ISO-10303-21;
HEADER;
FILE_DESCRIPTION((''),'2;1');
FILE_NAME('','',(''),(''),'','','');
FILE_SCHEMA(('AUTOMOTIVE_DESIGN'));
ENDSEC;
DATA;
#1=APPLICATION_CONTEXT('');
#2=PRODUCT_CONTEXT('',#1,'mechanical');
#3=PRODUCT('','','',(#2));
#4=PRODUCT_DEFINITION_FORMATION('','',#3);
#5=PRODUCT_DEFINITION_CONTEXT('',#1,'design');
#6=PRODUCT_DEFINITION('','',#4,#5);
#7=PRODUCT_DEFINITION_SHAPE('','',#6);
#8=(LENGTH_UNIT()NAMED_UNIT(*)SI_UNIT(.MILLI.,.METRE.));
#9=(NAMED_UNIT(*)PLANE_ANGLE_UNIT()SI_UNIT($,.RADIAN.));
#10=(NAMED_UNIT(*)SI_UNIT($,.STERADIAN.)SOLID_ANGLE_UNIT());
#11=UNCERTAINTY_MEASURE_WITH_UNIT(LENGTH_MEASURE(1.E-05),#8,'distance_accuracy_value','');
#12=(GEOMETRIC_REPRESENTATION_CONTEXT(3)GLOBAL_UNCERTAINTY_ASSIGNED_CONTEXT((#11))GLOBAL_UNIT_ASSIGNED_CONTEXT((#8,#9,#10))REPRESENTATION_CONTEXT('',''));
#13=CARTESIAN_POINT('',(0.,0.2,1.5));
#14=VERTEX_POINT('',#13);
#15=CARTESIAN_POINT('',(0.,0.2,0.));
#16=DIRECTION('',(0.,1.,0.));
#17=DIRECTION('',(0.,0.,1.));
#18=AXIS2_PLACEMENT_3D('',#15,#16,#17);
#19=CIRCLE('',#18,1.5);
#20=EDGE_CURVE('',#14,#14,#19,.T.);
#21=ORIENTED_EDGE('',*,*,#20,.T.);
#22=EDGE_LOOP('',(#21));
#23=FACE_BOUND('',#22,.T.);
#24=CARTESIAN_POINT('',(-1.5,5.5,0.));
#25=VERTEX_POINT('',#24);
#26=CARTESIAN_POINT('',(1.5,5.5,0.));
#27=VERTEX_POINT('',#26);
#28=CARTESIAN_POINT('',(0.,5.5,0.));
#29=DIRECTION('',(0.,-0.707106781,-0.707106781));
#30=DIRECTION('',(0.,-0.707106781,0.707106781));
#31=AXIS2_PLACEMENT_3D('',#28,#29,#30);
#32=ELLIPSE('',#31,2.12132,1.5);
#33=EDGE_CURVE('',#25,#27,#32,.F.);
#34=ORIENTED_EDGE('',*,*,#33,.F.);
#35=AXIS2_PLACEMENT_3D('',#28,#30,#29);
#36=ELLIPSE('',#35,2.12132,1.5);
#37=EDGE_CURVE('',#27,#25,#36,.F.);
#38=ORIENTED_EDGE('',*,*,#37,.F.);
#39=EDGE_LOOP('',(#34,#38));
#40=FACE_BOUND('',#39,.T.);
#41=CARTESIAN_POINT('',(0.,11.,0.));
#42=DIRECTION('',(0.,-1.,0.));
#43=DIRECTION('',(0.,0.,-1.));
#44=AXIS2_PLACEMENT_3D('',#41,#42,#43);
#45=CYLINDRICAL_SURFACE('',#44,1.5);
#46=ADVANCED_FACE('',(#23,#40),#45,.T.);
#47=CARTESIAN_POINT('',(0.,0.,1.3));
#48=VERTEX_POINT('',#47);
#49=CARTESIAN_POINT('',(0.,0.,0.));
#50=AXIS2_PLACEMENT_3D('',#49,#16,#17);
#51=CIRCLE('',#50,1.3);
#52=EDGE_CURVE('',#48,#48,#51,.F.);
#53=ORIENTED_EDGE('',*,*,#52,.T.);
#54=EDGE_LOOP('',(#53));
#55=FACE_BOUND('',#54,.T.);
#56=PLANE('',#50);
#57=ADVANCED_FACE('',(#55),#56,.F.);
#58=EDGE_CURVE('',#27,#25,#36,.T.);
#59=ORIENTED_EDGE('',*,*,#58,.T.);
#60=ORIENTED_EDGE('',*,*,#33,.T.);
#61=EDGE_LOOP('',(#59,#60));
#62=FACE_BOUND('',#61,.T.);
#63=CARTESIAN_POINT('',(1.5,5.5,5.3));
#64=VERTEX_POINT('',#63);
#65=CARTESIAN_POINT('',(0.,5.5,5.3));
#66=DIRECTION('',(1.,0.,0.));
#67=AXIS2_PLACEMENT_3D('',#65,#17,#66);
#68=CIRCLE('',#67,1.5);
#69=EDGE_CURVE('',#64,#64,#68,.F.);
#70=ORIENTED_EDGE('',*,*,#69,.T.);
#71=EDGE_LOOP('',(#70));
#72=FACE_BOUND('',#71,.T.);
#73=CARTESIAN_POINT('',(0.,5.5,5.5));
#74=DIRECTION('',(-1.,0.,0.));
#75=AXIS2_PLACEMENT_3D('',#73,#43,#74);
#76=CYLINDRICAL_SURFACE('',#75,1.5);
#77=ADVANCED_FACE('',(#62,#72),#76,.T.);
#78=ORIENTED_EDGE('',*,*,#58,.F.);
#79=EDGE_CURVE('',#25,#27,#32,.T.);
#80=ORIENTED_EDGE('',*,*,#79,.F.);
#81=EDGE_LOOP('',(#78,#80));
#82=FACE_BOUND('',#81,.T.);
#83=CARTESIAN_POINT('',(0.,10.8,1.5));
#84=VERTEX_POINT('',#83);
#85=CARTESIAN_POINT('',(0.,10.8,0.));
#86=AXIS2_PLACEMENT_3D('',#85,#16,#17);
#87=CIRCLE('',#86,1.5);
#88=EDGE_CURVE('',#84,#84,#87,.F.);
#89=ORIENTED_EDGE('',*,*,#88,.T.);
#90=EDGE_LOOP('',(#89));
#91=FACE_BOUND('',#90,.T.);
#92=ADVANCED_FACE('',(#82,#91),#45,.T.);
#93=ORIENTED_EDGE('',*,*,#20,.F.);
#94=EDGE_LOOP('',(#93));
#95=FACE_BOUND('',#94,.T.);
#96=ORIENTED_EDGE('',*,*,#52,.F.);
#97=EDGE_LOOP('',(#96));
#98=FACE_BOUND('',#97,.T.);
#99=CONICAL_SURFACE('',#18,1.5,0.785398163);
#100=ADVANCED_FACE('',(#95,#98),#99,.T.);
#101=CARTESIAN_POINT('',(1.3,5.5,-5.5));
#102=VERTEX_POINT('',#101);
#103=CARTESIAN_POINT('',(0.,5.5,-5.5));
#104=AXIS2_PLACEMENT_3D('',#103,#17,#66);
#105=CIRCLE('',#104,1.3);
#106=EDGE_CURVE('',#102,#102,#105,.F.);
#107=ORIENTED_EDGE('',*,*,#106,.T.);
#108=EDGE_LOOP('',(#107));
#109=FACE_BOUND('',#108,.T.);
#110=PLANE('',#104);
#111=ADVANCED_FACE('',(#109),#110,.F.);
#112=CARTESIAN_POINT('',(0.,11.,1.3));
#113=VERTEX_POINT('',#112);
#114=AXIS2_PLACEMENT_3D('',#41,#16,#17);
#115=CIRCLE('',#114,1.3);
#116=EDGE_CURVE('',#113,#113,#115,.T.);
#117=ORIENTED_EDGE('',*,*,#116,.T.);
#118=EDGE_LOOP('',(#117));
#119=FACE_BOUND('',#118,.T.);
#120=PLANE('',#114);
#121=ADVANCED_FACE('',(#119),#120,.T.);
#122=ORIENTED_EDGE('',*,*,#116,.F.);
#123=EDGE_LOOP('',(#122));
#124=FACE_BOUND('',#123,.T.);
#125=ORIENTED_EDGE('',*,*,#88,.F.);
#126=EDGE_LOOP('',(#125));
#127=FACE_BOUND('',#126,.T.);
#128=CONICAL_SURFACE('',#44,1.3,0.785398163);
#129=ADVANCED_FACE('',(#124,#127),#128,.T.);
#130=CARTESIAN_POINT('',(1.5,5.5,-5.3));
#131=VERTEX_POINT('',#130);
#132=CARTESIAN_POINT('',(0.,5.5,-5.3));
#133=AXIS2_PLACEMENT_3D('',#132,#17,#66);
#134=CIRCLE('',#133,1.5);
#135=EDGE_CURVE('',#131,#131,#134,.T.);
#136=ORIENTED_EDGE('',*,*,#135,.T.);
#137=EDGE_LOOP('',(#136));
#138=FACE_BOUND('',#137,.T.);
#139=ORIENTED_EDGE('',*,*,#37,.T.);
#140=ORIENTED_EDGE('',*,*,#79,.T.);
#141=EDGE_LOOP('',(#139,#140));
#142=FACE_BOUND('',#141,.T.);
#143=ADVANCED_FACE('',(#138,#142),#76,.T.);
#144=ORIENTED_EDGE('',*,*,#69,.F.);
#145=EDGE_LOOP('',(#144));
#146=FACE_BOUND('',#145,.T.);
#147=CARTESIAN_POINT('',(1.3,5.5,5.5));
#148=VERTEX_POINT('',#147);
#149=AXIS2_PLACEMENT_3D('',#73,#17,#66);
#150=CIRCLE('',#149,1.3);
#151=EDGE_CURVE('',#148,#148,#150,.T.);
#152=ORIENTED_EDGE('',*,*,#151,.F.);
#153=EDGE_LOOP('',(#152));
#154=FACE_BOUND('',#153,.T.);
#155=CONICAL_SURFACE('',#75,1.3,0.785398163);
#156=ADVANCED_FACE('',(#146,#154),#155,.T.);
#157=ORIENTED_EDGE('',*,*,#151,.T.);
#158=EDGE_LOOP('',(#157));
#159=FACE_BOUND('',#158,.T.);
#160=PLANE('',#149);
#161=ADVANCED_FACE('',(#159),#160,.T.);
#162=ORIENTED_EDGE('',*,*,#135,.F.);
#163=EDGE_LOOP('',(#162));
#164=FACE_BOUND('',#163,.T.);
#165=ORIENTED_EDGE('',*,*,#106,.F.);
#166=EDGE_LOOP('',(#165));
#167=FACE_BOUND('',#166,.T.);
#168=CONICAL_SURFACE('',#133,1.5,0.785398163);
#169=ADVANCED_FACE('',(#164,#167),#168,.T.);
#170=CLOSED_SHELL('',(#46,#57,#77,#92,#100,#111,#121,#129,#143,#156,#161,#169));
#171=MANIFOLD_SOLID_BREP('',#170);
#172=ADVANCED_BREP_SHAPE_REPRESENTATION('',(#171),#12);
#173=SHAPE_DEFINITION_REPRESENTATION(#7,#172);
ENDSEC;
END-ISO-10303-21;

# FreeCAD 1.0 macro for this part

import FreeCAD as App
import Part
import Sketcher
from FreeCAD import Vector


def edges_at(feature, points):
    """Names of the edges that pass closest to the given points."""
    edges = feature.Shape.Edges
    near = lambda p: min(range(len(edges)), key=lambda i: edges[i].distToShape(Part.Vertex(*p))[0])
    return sorted({f"Edge{near(p) + 1}" for p in points})

doc = App.newDocument("Part")
body = doc.addObject("PartDesign::Body", "Body")

# Sketch on XZ plane
sketch1 = body.newObject("Sketcher::SketchObject", "Sketch")
sketch1.AttachmentSupport = (doc.getObject("XZ_Plane"), [""])
sketch1.MapMode = "FlatFace"
sketch1.addGeometry(Part.Circle(Vector(0, 0, 0), Vector(0, 0, 1), 1.5), False)
sketch1.addConstraint([
    Sketcher.Constraint("Coincident", 0, 3, -1, 1),
    Sketcher.Constraint("Diameter", 0, 3.0),
])
pad1 = body.newObject("PartDesign::Pad", "Pad")
pad1.Profile = sketch1
pad1.Length = 11
pad1.Reversed = True

# Sketch on XY plane
sketch2 = body.newObject("Sketcher::SketchObject", "Sketch001")
sketch2.AttachmentSupport = (doc.getObject("XY_Plane"), [""])
sketch2.MapMode = "FlatFace"
sketch2.addGeometry(Part.Circle(Vector(0, 5.5, 0), Vector(0, 0, 1), 1.5), False)
sketch2.addConstraint([
    Sketcher.Constraint("PointOnObject", 0, 3, -2),
    Sketcher.Constraint("Diameter", 0, 3.0),
    Sketcher.Constraint("DistanceY", -1, 1, 0, 3, 5.5),
])
pad2 = body.newObject("PartDesign::Pad", "Pad001")
pad2.Profile = sketch2
pad2.Length = 11
pad2.Midplane = True
doc.recompute()

chamfer = body.newObject("PartDesign::Chamfer", "Chamfer")
chamfer.Base = (pad2, edges_at(pad2, [
    (-1.5, 0, 0),
    (-1.5, 11, 0),
    (-1.5, 5.5, -5.5),
    (-1.5, 5.5, 5.5),
]))
chamfer.Size = 0.2

doc.recompute()
